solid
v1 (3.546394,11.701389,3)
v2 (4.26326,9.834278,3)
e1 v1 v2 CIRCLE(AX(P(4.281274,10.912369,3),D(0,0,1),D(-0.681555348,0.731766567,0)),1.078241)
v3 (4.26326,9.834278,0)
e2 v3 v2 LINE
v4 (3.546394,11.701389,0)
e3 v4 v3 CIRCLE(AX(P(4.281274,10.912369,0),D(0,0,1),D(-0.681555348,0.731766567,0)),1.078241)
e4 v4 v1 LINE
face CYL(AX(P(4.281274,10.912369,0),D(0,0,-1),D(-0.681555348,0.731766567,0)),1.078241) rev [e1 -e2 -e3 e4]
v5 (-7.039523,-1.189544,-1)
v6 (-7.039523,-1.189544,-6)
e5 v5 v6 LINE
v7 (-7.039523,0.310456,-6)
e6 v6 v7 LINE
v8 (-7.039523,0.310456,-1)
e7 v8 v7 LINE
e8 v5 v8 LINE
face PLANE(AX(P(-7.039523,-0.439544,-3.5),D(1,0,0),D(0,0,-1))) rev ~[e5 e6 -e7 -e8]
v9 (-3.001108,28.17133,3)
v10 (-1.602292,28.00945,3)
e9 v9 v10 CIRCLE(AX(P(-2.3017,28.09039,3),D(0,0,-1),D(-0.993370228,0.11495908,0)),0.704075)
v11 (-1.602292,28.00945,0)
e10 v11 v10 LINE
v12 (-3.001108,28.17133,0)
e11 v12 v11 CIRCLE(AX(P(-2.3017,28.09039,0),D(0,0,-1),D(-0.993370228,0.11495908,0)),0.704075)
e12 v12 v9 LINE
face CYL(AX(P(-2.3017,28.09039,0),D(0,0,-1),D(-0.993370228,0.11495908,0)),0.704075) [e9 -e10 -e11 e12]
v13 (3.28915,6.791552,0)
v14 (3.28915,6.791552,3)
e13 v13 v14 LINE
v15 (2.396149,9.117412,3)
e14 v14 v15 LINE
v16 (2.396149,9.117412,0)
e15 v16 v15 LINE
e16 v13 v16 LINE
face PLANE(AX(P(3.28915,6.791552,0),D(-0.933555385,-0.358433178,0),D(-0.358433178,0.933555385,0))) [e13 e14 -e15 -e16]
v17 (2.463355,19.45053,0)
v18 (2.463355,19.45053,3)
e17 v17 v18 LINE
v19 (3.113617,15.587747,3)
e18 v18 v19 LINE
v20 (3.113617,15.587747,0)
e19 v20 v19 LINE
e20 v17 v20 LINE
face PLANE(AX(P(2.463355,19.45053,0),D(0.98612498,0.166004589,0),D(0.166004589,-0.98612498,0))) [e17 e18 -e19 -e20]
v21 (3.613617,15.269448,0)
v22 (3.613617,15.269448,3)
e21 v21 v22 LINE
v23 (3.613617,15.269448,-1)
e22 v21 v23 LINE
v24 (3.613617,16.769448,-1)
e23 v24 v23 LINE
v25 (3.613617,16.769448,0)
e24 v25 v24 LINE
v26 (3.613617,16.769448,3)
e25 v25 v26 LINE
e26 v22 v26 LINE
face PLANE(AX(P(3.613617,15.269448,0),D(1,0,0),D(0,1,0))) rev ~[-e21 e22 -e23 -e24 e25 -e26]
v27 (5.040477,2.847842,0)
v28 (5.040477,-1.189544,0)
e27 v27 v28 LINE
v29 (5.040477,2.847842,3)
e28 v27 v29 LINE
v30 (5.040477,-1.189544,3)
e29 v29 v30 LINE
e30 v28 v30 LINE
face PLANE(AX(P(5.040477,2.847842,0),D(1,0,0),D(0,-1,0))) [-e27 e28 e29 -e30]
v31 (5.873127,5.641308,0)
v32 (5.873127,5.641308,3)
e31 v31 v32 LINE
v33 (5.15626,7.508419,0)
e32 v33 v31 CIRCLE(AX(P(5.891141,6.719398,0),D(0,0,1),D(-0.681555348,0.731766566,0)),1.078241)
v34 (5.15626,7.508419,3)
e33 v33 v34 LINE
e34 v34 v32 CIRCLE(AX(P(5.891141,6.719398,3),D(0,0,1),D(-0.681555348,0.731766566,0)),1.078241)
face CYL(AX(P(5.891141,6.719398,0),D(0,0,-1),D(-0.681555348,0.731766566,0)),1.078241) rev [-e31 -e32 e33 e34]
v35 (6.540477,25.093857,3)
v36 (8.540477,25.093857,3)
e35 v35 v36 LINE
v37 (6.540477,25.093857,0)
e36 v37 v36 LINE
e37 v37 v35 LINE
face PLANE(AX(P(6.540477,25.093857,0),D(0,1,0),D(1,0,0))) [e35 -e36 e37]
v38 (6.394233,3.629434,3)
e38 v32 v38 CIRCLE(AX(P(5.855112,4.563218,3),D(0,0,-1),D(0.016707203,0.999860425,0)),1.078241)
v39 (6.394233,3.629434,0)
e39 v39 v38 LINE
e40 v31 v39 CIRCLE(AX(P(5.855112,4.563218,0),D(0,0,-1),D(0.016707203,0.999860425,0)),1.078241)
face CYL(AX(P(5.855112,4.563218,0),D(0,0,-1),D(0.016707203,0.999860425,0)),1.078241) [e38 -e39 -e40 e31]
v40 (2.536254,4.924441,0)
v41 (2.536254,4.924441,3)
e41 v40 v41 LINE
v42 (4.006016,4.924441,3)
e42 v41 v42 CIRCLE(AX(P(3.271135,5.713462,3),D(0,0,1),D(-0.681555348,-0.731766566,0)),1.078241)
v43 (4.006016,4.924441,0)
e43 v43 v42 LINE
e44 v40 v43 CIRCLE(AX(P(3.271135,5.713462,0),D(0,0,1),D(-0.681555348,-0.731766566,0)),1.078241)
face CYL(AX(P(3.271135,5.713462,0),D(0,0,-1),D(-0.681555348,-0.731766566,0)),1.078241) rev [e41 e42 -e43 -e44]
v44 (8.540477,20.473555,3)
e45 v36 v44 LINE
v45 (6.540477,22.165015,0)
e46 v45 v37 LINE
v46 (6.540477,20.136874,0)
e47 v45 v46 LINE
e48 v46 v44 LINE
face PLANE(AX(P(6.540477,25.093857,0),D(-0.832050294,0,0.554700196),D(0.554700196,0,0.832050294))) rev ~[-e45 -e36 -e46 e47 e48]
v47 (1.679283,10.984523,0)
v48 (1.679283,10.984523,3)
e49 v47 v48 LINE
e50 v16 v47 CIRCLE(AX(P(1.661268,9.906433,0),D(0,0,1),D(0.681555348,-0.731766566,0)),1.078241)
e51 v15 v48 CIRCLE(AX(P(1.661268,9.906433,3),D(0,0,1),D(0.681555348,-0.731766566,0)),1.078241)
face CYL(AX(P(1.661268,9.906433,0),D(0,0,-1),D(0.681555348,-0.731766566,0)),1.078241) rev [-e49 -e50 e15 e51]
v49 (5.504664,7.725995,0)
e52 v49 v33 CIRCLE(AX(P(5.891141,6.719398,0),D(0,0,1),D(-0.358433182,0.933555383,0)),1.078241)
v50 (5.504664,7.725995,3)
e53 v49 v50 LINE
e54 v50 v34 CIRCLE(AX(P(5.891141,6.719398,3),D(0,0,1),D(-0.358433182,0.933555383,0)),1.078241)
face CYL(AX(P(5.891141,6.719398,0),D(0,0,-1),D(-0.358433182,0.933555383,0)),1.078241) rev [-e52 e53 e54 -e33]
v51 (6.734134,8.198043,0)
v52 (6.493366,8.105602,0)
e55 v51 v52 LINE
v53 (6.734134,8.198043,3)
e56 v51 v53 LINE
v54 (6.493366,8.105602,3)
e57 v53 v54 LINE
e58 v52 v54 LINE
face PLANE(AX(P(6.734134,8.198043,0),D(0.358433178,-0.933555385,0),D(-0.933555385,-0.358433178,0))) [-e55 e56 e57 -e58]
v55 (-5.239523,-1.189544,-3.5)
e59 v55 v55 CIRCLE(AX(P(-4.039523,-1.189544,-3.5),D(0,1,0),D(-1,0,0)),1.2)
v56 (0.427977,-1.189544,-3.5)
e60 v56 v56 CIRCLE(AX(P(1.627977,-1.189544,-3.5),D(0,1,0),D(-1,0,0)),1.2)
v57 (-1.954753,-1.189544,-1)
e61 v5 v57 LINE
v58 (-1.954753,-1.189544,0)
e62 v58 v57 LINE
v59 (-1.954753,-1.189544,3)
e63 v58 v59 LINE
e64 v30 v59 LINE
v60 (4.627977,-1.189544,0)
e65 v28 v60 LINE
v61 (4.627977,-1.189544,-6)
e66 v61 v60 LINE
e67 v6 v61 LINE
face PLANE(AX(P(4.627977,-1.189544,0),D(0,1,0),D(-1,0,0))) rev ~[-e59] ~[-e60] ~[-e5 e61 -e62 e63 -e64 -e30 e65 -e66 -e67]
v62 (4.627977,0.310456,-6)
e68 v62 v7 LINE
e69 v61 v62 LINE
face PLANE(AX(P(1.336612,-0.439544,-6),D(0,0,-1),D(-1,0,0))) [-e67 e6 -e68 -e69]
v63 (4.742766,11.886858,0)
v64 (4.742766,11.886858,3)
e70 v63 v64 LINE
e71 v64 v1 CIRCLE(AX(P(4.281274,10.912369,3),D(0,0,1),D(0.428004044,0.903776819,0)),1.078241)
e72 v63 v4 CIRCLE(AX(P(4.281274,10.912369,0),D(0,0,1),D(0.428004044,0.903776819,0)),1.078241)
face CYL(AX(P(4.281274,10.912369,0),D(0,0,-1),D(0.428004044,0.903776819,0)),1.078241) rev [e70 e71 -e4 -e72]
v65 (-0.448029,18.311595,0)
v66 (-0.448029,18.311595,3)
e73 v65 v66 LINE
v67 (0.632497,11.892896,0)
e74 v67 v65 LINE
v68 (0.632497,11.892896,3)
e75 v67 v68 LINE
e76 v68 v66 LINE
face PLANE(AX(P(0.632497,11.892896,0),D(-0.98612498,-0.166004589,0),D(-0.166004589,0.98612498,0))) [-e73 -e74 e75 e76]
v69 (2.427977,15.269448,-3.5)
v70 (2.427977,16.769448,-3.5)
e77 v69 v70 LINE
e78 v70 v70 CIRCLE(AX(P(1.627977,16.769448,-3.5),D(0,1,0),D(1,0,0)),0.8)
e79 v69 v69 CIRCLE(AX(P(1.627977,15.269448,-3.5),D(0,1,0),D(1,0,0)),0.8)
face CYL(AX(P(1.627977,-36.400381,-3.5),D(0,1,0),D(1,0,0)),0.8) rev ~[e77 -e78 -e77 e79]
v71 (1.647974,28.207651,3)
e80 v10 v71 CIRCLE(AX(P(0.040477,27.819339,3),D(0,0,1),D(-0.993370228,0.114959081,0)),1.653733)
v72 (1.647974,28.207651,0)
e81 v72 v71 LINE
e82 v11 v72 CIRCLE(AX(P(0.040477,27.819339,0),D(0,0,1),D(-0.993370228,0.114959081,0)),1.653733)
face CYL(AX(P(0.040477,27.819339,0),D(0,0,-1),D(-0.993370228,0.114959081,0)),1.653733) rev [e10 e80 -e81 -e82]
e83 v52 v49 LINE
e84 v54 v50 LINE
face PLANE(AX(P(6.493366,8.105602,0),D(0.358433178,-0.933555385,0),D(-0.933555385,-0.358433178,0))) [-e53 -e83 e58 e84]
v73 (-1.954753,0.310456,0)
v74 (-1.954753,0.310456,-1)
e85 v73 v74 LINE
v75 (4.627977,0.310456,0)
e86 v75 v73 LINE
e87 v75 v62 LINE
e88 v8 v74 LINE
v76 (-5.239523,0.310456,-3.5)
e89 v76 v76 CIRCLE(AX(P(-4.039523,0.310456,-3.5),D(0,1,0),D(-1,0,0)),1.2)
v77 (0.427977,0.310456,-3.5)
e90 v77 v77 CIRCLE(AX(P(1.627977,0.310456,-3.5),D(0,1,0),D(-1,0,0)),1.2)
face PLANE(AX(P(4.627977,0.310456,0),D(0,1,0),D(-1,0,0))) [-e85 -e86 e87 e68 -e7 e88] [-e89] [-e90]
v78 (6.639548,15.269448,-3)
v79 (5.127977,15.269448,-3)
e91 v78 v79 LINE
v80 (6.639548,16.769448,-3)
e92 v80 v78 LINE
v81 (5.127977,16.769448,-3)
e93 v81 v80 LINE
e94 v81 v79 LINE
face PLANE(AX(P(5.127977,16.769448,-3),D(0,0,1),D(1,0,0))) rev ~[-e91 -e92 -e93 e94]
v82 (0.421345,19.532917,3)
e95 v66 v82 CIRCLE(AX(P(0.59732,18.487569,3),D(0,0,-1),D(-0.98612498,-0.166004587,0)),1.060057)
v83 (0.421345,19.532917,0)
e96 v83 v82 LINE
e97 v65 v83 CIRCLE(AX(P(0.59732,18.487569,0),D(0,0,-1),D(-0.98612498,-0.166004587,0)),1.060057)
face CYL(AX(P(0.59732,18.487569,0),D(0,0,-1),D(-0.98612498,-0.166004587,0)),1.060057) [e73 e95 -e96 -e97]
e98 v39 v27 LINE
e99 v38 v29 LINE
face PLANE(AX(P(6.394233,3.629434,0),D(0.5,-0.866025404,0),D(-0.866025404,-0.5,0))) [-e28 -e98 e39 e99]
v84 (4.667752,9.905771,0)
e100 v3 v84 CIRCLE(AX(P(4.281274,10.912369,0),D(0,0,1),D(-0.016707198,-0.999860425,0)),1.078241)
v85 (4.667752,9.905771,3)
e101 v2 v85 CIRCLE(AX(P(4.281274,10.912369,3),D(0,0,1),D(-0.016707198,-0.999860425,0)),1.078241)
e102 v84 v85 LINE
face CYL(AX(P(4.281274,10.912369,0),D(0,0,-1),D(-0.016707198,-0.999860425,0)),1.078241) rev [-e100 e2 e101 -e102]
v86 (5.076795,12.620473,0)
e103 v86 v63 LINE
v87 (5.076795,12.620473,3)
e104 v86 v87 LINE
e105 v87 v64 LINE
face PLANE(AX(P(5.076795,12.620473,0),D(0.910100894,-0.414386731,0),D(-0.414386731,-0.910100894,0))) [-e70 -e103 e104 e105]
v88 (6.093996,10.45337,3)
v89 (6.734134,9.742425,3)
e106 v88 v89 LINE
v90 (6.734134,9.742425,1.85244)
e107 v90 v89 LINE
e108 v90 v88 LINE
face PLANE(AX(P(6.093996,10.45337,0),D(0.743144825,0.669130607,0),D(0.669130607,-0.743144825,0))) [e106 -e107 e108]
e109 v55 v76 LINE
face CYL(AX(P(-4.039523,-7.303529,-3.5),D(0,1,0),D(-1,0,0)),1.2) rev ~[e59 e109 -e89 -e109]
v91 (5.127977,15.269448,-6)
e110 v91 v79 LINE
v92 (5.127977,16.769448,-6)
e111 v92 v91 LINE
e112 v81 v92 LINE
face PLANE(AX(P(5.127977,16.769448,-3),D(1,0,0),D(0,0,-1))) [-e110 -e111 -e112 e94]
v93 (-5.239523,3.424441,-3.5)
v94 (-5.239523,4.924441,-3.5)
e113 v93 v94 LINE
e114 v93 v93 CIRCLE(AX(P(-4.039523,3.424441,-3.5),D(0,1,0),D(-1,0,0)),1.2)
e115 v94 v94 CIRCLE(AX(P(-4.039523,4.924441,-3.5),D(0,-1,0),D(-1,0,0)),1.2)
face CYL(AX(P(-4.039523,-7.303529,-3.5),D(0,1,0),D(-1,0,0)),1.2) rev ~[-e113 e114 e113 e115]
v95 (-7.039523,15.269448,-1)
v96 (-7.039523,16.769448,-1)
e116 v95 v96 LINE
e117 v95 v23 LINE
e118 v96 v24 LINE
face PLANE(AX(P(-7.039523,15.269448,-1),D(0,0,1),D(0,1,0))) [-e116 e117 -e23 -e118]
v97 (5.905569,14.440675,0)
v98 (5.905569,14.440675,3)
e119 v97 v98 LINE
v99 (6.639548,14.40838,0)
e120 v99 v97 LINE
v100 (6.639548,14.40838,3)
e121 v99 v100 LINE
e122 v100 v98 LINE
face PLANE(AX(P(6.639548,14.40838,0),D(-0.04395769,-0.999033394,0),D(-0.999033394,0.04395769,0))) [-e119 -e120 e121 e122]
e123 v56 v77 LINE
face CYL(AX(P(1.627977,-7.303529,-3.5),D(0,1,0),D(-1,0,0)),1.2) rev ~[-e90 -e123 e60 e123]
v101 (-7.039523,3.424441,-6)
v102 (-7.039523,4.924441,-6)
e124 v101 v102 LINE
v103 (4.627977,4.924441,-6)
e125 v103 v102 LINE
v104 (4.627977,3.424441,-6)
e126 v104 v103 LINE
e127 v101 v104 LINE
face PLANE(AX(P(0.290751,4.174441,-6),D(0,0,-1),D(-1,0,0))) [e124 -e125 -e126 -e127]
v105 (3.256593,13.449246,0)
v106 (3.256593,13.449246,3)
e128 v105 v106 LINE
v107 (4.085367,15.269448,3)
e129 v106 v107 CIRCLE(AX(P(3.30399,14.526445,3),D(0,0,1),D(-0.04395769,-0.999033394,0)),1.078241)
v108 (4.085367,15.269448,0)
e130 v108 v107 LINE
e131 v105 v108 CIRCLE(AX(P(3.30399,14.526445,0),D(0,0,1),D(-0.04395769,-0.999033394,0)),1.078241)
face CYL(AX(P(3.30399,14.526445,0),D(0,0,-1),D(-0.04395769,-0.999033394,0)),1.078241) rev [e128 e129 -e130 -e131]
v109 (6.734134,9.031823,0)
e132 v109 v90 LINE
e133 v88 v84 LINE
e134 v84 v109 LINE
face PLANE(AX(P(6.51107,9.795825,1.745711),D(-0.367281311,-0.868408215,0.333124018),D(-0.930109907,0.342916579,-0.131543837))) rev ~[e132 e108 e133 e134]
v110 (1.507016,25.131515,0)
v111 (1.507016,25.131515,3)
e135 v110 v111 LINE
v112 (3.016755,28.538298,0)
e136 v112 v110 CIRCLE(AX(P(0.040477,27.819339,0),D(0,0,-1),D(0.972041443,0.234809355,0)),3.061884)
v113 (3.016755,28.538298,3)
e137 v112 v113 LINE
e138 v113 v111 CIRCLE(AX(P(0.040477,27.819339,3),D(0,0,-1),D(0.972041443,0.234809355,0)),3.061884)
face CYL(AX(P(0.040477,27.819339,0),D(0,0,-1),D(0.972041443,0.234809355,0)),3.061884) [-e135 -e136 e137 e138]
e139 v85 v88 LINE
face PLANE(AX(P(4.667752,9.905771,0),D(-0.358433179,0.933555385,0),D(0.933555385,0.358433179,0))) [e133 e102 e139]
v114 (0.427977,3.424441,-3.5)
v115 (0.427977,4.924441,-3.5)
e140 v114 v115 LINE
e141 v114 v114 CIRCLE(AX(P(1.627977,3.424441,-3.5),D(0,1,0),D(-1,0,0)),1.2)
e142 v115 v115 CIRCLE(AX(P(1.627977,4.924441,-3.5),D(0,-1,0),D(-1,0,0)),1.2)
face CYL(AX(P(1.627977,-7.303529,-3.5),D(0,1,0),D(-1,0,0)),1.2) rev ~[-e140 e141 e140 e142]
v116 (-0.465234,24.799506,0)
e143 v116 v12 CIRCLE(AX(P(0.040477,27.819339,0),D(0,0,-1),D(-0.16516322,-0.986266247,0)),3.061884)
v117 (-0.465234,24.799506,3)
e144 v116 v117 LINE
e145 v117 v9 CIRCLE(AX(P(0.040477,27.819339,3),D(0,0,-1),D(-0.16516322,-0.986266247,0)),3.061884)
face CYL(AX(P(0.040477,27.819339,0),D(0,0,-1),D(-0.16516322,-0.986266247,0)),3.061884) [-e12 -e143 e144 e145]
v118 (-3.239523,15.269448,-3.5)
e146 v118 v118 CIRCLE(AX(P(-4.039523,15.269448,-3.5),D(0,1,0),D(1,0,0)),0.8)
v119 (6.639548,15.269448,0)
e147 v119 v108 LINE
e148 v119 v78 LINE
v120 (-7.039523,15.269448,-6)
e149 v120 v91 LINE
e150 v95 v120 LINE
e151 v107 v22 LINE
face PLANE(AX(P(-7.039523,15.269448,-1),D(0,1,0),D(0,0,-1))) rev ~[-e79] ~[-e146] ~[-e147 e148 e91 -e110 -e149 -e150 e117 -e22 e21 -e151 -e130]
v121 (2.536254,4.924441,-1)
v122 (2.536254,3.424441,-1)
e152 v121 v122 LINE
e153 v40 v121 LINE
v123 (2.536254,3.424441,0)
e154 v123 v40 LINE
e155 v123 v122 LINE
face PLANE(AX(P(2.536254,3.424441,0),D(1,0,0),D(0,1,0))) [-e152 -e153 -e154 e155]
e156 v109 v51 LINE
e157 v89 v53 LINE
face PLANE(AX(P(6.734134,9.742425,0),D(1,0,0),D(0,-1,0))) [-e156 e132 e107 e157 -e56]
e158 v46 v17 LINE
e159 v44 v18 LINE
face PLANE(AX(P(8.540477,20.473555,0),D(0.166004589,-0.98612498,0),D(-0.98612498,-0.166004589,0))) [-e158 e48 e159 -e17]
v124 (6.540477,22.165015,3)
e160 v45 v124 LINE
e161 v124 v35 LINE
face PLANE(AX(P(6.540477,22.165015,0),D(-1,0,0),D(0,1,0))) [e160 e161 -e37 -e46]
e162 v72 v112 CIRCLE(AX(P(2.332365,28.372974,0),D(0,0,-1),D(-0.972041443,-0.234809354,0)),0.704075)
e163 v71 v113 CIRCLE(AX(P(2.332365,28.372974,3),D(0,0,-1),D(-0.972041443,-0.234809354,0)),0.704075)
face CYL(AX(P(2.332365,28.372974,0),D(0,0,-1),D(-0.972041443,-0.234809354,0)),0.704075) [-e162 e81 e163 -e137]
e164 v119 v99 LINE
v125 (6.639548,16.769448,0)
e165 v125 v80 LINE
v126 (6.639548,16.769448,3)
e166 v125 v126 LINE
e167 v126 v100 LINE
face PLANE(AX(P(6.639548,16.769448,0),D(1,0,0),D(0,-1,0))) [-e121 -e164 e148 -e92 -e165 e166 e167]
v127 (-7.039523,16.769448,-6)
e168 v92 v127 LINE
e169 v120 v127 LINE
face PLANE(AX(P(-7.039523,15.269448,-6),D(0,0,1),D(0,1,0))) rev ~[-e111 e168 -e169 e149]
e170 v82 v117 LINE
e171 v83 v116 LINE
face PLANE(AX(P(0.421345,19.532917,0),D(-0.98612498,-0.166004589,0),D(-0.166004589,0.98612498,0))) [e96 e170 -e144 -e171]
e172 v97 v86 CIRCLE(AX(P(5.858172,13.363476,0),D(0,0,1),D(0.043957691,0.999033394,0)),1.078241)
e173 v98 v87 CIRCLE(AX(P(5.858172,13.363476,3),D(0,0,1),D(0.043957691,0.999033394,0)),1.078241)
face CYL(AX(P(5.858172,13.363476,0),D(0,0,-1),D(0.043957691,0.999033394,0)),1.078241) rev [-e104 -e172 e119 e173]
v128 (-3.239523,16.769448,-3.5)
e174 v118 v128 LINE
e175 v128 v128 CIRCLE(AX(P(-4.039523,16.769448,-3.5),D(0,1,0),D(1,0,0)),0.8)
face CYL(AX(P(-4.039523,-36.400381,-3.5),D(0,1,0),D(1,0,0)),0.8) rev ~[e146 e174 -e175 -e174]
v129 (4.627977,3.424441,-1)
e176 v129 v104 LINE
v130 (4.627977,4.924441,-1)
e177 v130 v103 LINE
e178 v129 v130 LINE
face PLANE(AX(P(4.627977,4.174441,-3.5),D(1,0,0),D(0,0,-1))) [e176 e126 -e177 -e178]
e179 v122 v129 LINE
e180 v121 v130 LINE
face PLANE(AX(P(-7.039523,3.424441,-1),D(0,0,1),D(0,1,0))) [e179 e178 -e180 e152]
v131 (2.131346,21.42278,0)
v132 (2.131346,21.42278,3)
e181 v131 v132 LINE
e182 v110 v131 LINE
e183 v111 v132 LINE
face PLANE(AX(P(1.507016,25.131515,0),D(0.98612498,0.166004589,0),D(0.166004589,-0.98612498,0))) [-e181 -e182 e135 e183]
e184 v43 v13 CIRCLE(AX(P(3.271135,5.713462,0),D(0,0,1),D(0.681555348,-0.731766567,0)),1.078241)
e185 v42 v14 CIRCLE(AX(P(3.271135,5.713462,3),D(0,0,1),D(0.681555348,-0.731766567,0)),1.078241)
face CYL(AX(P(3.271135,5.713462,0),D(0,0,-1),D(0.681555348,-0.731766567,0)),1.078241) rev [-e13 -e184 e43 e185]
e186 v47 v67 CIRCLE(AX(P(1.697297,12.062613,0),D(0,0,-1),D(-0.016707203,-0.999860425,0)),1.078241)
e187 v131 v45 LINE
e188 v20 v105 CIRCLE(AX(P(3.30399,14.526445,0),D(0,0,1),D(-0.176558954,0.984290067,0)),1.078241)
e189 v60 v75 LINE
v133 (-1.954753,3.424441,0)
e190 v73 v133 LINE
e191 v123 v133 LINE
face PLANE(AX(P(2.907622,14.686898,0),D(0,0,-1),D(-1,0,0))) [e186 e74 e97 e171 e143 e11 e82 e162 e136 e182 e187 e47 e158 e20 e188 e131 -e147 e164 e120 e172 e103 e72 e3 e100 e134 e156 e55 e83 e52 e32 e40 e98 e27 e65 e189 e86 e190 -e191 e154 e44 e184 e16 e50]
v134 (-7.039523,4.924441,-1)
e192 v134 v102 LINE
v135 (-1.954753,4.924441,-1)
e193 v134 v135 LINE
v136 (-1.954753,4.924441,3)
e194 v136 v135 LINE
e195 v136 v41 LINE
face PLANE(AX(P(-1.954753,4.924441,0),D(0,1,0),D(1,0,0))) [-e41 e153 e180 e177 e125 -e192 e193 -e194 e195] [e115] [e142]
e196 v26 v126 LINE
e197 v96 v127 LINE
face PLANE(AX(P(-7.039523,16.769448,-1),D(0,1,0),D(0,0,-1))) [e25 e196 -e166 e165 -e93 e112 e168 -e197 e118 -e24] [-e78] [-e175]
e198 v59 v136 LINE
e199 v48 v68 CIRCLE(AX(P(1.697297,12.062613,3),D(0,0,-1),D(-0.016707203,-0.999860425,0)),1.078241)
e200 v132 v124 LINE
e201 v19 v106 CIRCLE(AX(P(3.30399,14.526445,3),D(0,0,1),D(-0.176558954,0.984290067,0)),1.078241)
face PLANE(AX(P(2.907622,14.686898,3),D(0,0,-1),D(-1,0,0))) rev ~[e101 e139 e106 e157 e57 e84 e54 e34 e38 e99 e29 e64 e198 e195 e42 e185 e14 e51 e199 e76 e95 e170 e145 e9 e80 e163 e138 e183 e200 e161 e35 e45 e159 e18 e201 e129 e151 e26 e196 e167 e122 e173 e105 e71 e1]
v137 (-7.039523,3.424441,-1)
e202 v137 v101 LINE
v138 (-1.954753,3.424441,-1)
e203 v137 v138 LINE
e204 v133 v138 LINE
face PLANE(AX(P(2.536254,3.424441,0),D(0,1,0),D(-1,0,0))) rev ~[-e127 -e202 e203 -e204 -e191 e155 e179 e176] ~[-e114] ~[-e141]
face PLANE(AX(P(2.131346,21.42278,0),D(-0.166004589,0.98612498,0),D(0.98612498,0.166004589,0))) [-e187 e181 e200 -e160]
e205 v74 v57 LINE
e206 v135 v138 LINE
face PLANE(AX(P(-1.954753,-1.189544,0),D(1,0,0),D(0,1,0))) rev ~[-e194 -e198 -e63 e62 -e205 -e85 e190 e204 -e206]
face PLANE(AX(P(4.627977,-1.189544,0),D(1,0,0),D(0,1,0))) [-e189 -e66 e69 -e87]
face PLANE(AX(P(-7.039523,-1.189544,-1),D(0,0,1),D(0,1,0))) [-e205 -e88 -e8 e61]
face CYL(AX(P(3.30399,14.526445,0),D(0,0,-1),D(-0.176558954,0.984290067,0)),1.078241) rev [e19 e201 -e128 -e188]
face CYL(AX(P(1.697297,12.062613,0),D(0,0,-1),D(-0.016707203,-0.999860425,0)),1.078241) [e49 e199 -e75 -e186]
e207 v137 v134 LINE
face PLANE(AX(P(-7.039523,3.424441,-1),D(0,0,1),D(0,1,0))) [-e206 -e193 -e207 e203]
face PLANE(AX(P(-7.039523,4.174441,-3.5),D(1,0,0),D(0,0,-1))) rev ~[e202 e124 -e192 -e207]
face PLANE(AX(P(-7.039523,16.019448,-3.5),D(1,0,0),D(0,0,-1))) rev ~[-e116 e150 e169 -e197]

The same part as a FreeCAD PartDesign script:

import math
import FreeCAD as App
import Part
import Sketcher
from FreeCAD import Vector
Q = App.Units.Quantity


def add_polygon(sketch, points):
    """Adds a closed chain of lines whose ends are joined by coincident constraints."""
    first, n = sketch.GeometryCount, len(points)
    for a, b in zip(points, points[1:] + points[:1]):
        sketch.addGeometry(Part.LineSegment(App.Vector(*a, 0), App.Vector(*b, 0)), False)
    for i in range(n):
        sketch.addConstraint(Sketcher.Constraint("Coincident", first + i, 2, first + (i + 1) % n, 1))

doc = App.newDocument("Part")
body = doc.addObject("PartDesign::Body", "Body")

# Sketch on XY plane
sketch1 = body.newObject("Sketcher::SketchObject", "Sketch")
sketch1.AttachmentSupport = (doc.getObject("XY_Plane"), [""])
sketch1.MapMode = "FlatFace"
sketch1.addGeometry([
    Part.LineSegment(Vector(6.54, 25.09, 0), Vector(6.54, 22.17, 0)),  # 0
    Part.LineSegment(Vector(6.54, 22.17, 0), Vector(2.13, 21.42, 0)),  # 1
    Part.LineSegment(Vector(2.13, 21.42, 0), Vector(1.51, 25.13, 0)),  # 2
    Part.ArcOfCircle(Part.Circle(Vector(0.04, 27.82, 0), Vector(0, 0, 1), 3.06), math.radians(-61), math.radians(14)),  # 3
    Part.ArcOfCircle(Part.Circle(Vector(2.33, 28.37, 0), Vector(0, 0, 1), 0.7), math.radians(14), math.radians(194)),  # 4
    Part.ArcOfCircle(Part.Circle(Vector(0.04, 27.82, 0), Vector(0, 0, 1), 1.65), math.radians(173), math.radians(374)),  # 5
    Part.ArcOfCircle(Part.Circle(Vector(-2.3, 28.09, 0), Vector(0, 0, 1), 0.7), math.radians(-7), math.radians(173)),  # 6
    Part.ArcOfCircle(Part.Circle(Vector(0.04, 27.82, 0), Vector(0, 0, 1), 3.06), math.radians(173), math.radians(260)),  # 7
    Part.LineSegment(Vector(-0.47, 24.8, 0), Vector(0.42, 19.53, 0)),  # 8
    Part.ArcOfCircle(Part.Circle(Vector(0.6, 18.49, 0), Vector(0, 0, 1), 1.06), math.radians(100), math.radians(190)),  # 9
    Part.LineSegment(Vector(-0.45, 18.31, 0), Vector(0.63, 11.89, 0)),  # 10
    Part.ArcOfCircle(Part.Circle(Vector(1.7, 12.06, 0), Vector(0, 0, 1), 1.08), math.radians(-171), math.radians(-91)),  # 11
    Part.ArcOfCircle(Part.Circle(Vector(1.66, 9.91, 0), Vector(0, 0, 1), 1.08), math.radians(-47), math.radians(89)),  # 12
    Part.LineSegment(Vector(2.4, 9.12, 0), Vector(3.29, 6.79, 0)),  # 13
    Part.ArcOfCircle(Part.Circle(Vector(3.27, 5.71, 0), Vector(0, 0, 1), 1.08), math.radians(-47), math.radians(89)),  # 14
    Part.ArcOfCircle(Part.Circle(Vector(3.27, 5.71, 0), Vector(0, 0, 1), 1.08), math.radians(-133), math.radians(-47)),  # 15
    Part.LineSegment(Vector(2.54, 4.92, 0), Vector(-1.95, 4.92, 0)),  # 16
    Part.LineSegment(Vector(-1.95, 4.92, 0), Vector(-1.95, -1.19, 0)),  # 17
    Part.LineSegment(Vector(-1.95, -1.19, 0), Vector(5.04, -1.19, 0)),  # 18
    Part.LineSegment(Vector(5.04, -1.19, 0), Vector(5.04, 2.85, 0)),  # 19
    Part.LineSegment(Vector(5.04, 2.85, 0), Vector(6.39, 3.63, 0)),  # 20
    Part.ArcOfCircle(Part.Circle(Vector(5.86, 4.56, 0), Vector(0, 0, 1), 1.08), math.radians(-60), math.radians(89)),  # 21
    Part.ArcOfCircle(Part.Circle(Vector(5.89, 6.72, 0), Vector(0, 0, 1), 1.08), math.radians(133), math.radians(269)),  # 22
    Part.ArcOfCircle(Part.Circle(Vector(5.89, 6.72, 0), Vector(0, 0, 1), 1.08), math.radians(111), math.radians(133)),  # 23
    Part.LineSegment(Vector(5.5, 7.73, 0), Vector(6.49, 8.11, 0)),  # 24
    Part.LineSegment(Vector(6.49, 8.11, 0), Vector(6.73, 8.2, 0)),  # 25
    Part.LineSegment(Vector(6.73, 8.2, 0), Vector(6.73, 9.74, 0)),  # 26
    Part.LineSegment(Vector(6.73, 9.74, 0), Vector(6.09, 10.45, 0)),  # 27
    Part.LineSegment(Vector(6.09, 10.45, 0), Vector(4.67, 9.91, 0)),  # 28
    Part.ArcOfCircle(Part.Circle(Vector(4.28, 10.91, 0), Vector(0, 0, 1), 1.08), math.radians(-91), math.radians(-69)),  # 29
    Part.ArcOfCircle(Part.Circle(Vector(4.28, 10.91, 0), Vector(0, 0, 1), 1.08), math.radians(133), math.radians(269)),  # 30
    Part.ArcOfCircle(Part.Circle(Vector(4.28, 10.91, 0), Vector(0, 0, 1), 1.08), math.radians(65), math.radians(133)),  # 31
    Part.LineSegment(Vector(4.74, 11.89, 0), Vector(5.08, 12.62, 0)),  # 32
    Part.ArcOfCircle(Part.Circle(Vector(5.86, 13.36, 0), Vector(0, 0, 1), 1.08), math.radians(87), math.radians(224)),  # 33
    Part.LineSegment(Vector(5.91, 14.44, 0), Vector(6.64, 14.41, 0)),  # 34
    Part.LineSegment(Vector(6.64, 14.41, 0), Vector(6.64, 16.77, 0)),  # 35
    Part.LineSegment(Vector(6.64, 16.77, 0), Vector(3.61, 16.77, 0)),  # 36
    Part.LineSegment(Vector(3.61, 16.77, 0), Vector(3.61, 15.27, 0)),  # 37
    Part.LineSegment(Vector(3.61, 15.27, 0), Vector(4.09, 15.27, 0)),  # 38
    Part.ArcOfCircle(Part.Circle(Vector(3.3, 14.53, 0), Vector(0, 0, 1), 1.08), math.radians(-93), math.radians(44)),  # 39
    Part.ArcOfCircle(Part.Circle(Vector(3.3, 14.53, 0), Vector(0, 0, 1), 1.08), math.radians(100), math.radians(267)),  # 40
    Part.LineSegment(Vector(3.11, 15.59, 0), Vector(2.46, 19.45, 0)),  # 41
    Part.LineSegment(Vector(2.46, 19.45, 0), Vector(8.54, 20.47, 0)),  # 42
    Part.LineSegment(Vector(8.54, 20.47, 0), Vector(8.54, 25.09, 0)),  # 43
    Part.LineSegment(Vector(8.54, 25.09, 0), Vector(6.54, 25.09, 0)),  # 44
], False)
sketch1.addConstraint([
    Sketcher.Constraint("Coincident", 0, 2, 1, 1),
    Sketcher.Constraint("Coincident", 1, 2, 2, 1),
    Sketcher.Constraint("Coincident", 2, 2, 3, 1),
    Sketcher.Constraint("Tangent", 3, 2, 4, 1),
    Sketcher.Constraint("Tangent", 4, 2, 5, 2),
    Sketcher.Constraint("Tangent", 5, 1, 6, 1),
    Sketcher.Constraint("Tangent", 6, 2, 7, 1),
    Sketcher.Constraint("Coincident", 7, 2, 8, 1),
    Sketcher.Constraint("Coincident", 8, 2, 9, 1),
    Sketcher.Constraint("Tangent", 9, 2, 10, 1),
    Sketcher.Constraint("Coincident", 10, 2, 11, 1),
    Sketcher.Constraint("Tangent", 11, 2, 12, 2),
    Sketcher.Constraint("Coincident", 12, 1, 13, 1),
    Sketcher.Constraint("Coincident", 13, 2, 14, 2),
    Sketcher.Constraint("Tangent", 14, 1, 15, 2),
    Sketcher.Constraint("Coincident", 15, 1, 16, 1),
    Sketcher.Constraint("Coincident", 16, 2, 17, 1),
    Sketcher.Constraint("Coincident", 17, 2, 18, 1),
    Sketcher.Constraint("Coincident", 18, 2, 19, 1),
    Sketcher.Constraint("Coincident", 19, 2, 20, 1),
    Sketcher.Constraint("Tangent", 20, 2, 21, 1),
    Sketcher.Constraint("Tangent", 21, 2, 22, 2),
    Sketcher.Constraint("Tangent", 22, 1, 23, 2),
    Sketcher.Constraint("Tangent", 23, 1, 24, 1),
    Sketcher.Constraint("Coincident", 24, 2, 25, 1),
    Sketcher.Constraint("Coincident", 25, 2, 26, 1),
    Sketcher.Constraint("Coincident", 26, 2, 27, 1),
    Sketcher.Constraint("Coincident", 27, 2, 28, 1),
    Sketcher.Constraint("Tangent", 28, 2, 29, 2),
    Sketcher.Constraint("Tangent", 29, 1, 30, 2),
    Sketcher.Constraint("Tangent", 30, 1, 31, 2),
    Sketcher.Constraint("Coincident", 31, 1, 32, 1),
    Sketcher.Constraint("Coincident", 32, 2, 33, 2),
    Sketcher.Constraint("Tangent", 33, 1, 34, 1),
    Sketcher.Constraint("Coincident", 34, 2, 35, 1),
    Sketcher.Constraint("Coincident", 35, 2, 36, 1),
    Sketcher.Constraint("Coincident", 36, 2, 37, 1),
    Sketcher.Constraint("Coincident", 37, 2, 38, 1),
    Sketcher.Constraint("Coincident", 38, 2, 39, 2),
    Sketcher.Constraint("Tangent", 39, 1, 40, 2),
    Sketcher.Constraint("Coincident", 40, 1, 41, 1),
    Sketcher.Constraint("Coincident", 41, 2, 42, 1),
    Sketcher.Constraint("Coincident", 42, 2, 43, 1),
    Sketcher.Constraint("Coincident", 43, 2, 44, 1),
    Sketcher.Constraint("Coincident", 44, 2, 0, 1),
    Sketcher.Constraint("Vertical", 0),
    Sketcher.Constraint("Horizontal", 16),
    Sketcher.Constraint("Vertical", 17),
    Sketcher.Constraint("Horizontal", 18),
    Sketcher.Constraint("Vertical", 19),
    Sketcher.Constraint("Vertical", 26),
    Sketcher.Constraint("Vertical", 35),
    Sketcher.Constraint("Horizontal", 36),
    Sketcher.Constraint("Vertical", 37),
    Sketcher.Constraint("Horizontal", 38),
    Sketcher.Constraint("Vertical", 43),
    Sketcher.Constraint("Horizontal", 44),
    Sketcher.Constraint("Coincident", 5, 3, 3, 3),
    Sketcher.Constraint("Coincident", 7, 3, 3, 3),
    Sketcher.Constraint("Coincident", 31, 3, 29, 3),
    Sketcher.Constraint("Equal", 4, 6),
    Sketcher.Constraint("Equal", 11, 12),
    Sketcher.Constraint("Equal", 12, 14),
    Sketcher.Constraint("Equal", 14, 15),
    Sketcher.Constraint("Equal", 15, 21),
    Sketcher.Constraint("Equal", 21, 22),
    Sketcher.Constraint("Equal", 22, 23),
    Sketcher.Constraint("Equal", 23, 29),
    Sketcher.Constraint("Equal", 31, 33),
    Sketcher.Constraint("Equal", 33, 39),
    Sketcher.Constraint("Equal", 39, 40),
    Sketcher.Constraint("Perpendicular", 1, 2),
    Sketcher.Constraint("Parallel", 2, 8),
    Sketcher.Constraint("Parallel", 8, 10),
    Sketcher.Constraint("Perpendicular", 13, 24),
    Sketcher.Constraint("Parallel", 24, 25),
    Sketcher.Constraint("Parallel", 25, 28),
    Sketcher.Constraint("Parallel", 10, 41),
    Sketcher.Constraint("Perpendicular", 41, 42),
    Sketcher.Constraint("Horizontal", 14, 1, 15, 1),
    Sketcher.Constraint("DistanceX", 44, 2, 44, 1, Q("2 mm")),
    Sketcher.Constraint("Angle", 20, Q("30 deg")),
    Sketcher.Constraint("Angle", 27, Q("132 deg")),
    Sketcher.Constraint("DistanceY", 37, 2, 37, 1, Q("1.5 mm")),
    Sketcher.Constraint("Radius", 11, Q("1.078241 mm")),
    Sketcher.Constraint("Radius", 3, Q("3.061884 mm")),
    Sketcher.Constraint("Radius", 4, Q("0.704075 mm")),
    Sketcher.Constraint("Radius", 9, Q("1.060057 mm")),
    Sketcher.Constraint("Distance", 13, Q("2.4914 mm")),
    Sketcher.Constraint("DistanceX", 18, 1, 18, 2, Q("6.99523 mm")),
    Sketcher.Constraint("DistanceX", 36, 2, 36, 1, Q("3.025931 mm")),
    Sketcher.Constraint("DistanceX", 38, 1, 38, 2, Q("0.47175 mm")),
    Sketcher.Constraint("DistanceY", 26, 1, 26, 2, Q("1.544382 mm")),
    Sketcher.Constraint("DistanceY", 35, 1, 35, 2, Q("2.361069 mm")),
    Sketcher.Constraint("DistanceX", 6, 3, -1, 1, Q("2.3017 mm")),
    Sketcher.Constraint("DistanceY", -1, 1, 22, 3, Q("6.719398 mm")),
    Sketcher.Constraint("Distance", 1, Q("4.471169 mm")),
    Sketcher.Constraint("Distance", 8, Q("5.34069 mm")),
    Sketcher.Constraint("Distance", 10, Q("6.509011 mm")),
    Sketcher.Constraint("Distance", 27, Q("0.95667 mm")),
    Sketcher.Constraint("Distance", 32, Q("0.806081 mm")),
    Sketcher.Constraint("Distance", 34, Q("0.73469 mm")),
    Sketcher.Constraint("Distance", 42, Q("6.162628 mm")),
    Sketcher.Constraint("DistanceX", 16, 2, 16, 1, Q("4.491007 mm")),
    Sketcher.Constraint("DistanceY", 0, 2, 0, 1, Q("2.928842 mm")),
    Sketcher.Constraint("DistanceY", 17, 2, 17, 1, Q("6.113985 mm")),
    Sketcher.Constraint("DistanceY", 19, 1, 19, 2, Q("4.037386 mm")),
    Sketcher.Constraint("DistanceY", 43, 1, 43, 2, Q("4.620302 mm")),
    Sketcher.Constraint("DistanceY", -1, 1, 3, 3, Q("27.819339 mm")),
    Sketcher.Constraint("DistanceY", -1, 1, 6, 3, Q("28.09039 mm")),
    Sketcher.Constraint("DistanceX", -1, 1, 9, 3, Q("0.59732 mm")),
    Sketcher.Constraint("DistanceY", -1, 1, 9, 3, Q("18.487569 mm")),
    Sketcher.Constraint("DistanceX", -1, 1, 12, 3, Q("1.661268 mm")),
    Sketcher.Constraint("DistanceY", -1, 1, 14, 3, Q("5.713462 mm")),
    Sketcher.Constraint("DistanceX", -1, 1, 22, 3, Q("5.891141 mm")),
    Sketcher.Constraint("DistanceY", -1, 1, 29, 3, Q("10.912369 mm")),
    Sketcher.Constraint("DistanceX", -1, 1, 33, 3, Q("5.858172 mm")),
    Sketcher.Constraint("DistanceX", -1, 1, 39, 3, Q("3.30399 mm")),
    Sketcher.Constraint("DistanceY", -1, 1, 1, 2, Q("21.42278 mm")),
    Sketcher.Constraint("DistanceY", -1, 1, 4, 2, Q("28.207651 mm")),
    Sketcher.Constraint("DistanceX", 9, 2, -1, 1, Q("0.448029 mm")),
    Sketcher.Constraint("DistanceX", -1, 1, 12, 1, Q("2.396149 mm")),
    Sketcher.Constraint("DistanceX", -1, 1, 13, 2, Q("3.28915 mm")),
    Sketcher.Constraint("DistanceY", -1, 1, 14, 1, Q("4.924441 mm")),
    Sketcher.Constraint("DistanceX", -1, 1, 22, 1, Q("5.15626 mm")),
    Sketcher.Constraint("DistanceY", -1, 1, 27, 2, Q("10.45337 mm")),
    Sketcher.Constraint("DistanceX", -1, 1, 29, 1, Q("4.26326 mm")),
    Sketcher.Constraint("DistanceY", -1, 1, 30, 1, Q("11.701389 mm")),
    Sketcher.Constraint("DistanceX", -1, 1, 33, 1, Q("5.905569 mm")),
    Sketcher.Constraint("DistanceY", -1, 1, 34, 2, Q("14.40838 mm")),
    Sketcher.Constraint("Distance", 2, Q("3.760918 mm")),
    Sketcher.Constraint("Distance", 20, Q("1.563182 mm")),
    Sketcher.Constraint("Distance", 24, Q("1.059072 mm")),
    Sketcher.Constraint("DistanceX", -1, 1, 31, 1, Q("4.742766 mm")),
    Sketcher.Constraint("DistanceX", -1, 1, 39, 1, Q("3.256593 mm")),
])
pad1 = body.newObject("PartDesign::Pad", "Pad")
pad1.Profile = sketch1
pad1.Length = 3

# Sketch on XY plane
sketch2 = body.newObject("Sketcher::SketchObject", "Sketch001")
sketch2.AttachmentSupport = (doc.getObject("XY_Plane"), [""])
sketch2.MapMode = "FlatFace"
add_polygon(sketch2, [(4.6, 0.3), (4.6, -1.2), (-2, -1.2), (-2, 0.3)])  # lines 0-3
add_polygon(sketch2, [(6.6, 16.8), (6.6, 15.3), (3.6, 15.3), (3.6, 16.8)])  # lines 4-7
add_polygon(sketch2, [(2.5, 4.9), (2.5, 3.4), (-2, 3.4), (-2, 4.9)])  # lines 8-11
sketch2.addConstraint([
    Sketcher.Constraint("Vertical", 0),
    Sketcher.Constraint("Horizontal", 1),
    Sketcher.Constraint("Vertical", 2),
    Sketcher.Constraint("Horizontal", 3),
    Sketcher.Constraint("Vertical", 4),
    Sketcher.Constraint("Horizontal", 5),
    Sketcher.Constraint("Vertical", 6),
    Sketcher.Constraint("Horizontal", 7),
    Sketcher.Constraint("Vertical", 8),
    Sketcher.Constraint("Horizontal", 9),
    Sketcher.Constraint("Vertical", 10),
    Sketcher.Constraint("Horizontal", 11),
    Sketcher.Constraint("Vertical", 2, 2, 9, 2),
    Sketcher.Constraint("Equal", 2, 4),
    Sketcher.Constraint("Equal", 6, 8),
    Sketcher.Constraint("DistanceY", 0, 2, 0, 1, Q("1.5 mm")),
    Sketcher.Constraint("DistanceX", 1, 2, 1, 1, Q("6.58273 mm")),
    Sketcher.Constraint("DistanceX", 5, 2, 5, 1, Q("3.025931 mm")),
    Sketcher.Constraint("DistanceX", 2, 2, 4, 2, Q("8.594301 mm")),
    Sketcher.Constraint("DistanceX", 9, 2, 9, 1, Q("4.491007 mm")),
    Sketcher.Constraint("DistanceX", -1, 1, 4, 2, Q("6.639548 mm")),
    Sketcher.Constraint("DistanceY", -1, 1, 4, 2, Q("15.269448 mm")),
    Sketcher.Constraint("DistanceY", -1, 1, 8, 2, Q("3.424441 mm")),
    Sketcher.Constraint("DistanceY", 3, 2, 4, 2, Q("14.958992 mm")),
])
pad2 = body.newObject("PartDesign::Pad", "Pad001")
pad2.Profile = sketch2
pad2.Length = 6
pad2.Reversed = True

# Sketch on YZ plane
sketch3 = body.newObject("Sketcher::SketchObject", "Sketch002")
sketch3.AttachmentSupport = (doc.getObject("YZ_Plane"), [""])
sketch3.MapMode = "FlatFace"
sketch3.AttachmentOffset = App.Placement(Vector(0, 0, -7.039523), App.Rotation())
add_polygon(sketch3, [(16.8, -1), (15.3, -1), (15.3, -6), (16.8, -6)])  # lines 0-3
add_polygon(sketch3, [(4.9, -1), (3.4, -1), (3.4, -6), (4.9, -6)])  # lines 4-7
add_polygon(sketch3, [(0.3, -1), (-1.2, -1), (-1.2, -6), (0.3, -6)])  # lines 8-11
sketch3.addConstraint([
    Sketcher.Constraint("Horizontal", 0),
    Sketcher.Constraint("Vertical", 1),
    Sketcher.Constraint("Horizontal", 2),
    Sketcher.Constraint("Vertical", 3),
    Sketcher.Constraint("Horizontal", 4),
    Sketcher.Constraint("Vertical", 5),
    Sketcher.Constraint("Horizontal", 6),
    Sketcher.Constraint("Vertical", 7),
    Sketcher.Constraint("Horizontal", 8),
    Sketcher.Constraint("Vertical", 9),
    Sketcher.Constraint("Horizontal", 10),
    Sketcher.Constraint("Vertical", 11),
    Sketcher.Constraint("Horizontal", 3, 2, 4, 2),
    Sketcher.Constraint("Horizontal", 2, 2, 5, 2),
    Sketcher.Constraint("Horizontal", 7, 2, 8, 2),
    Sketcher.Constraint("Horizontal", 6, 2, 9, 2),
    Sketcher.Constraint("Equal", 2, 4),
    Sketcher.Constraint("Equal", 6, 8),
    Sketcher.Constraint("DistanceY", 1, 2, 1, 1, Q("5 mm")),
    Sketcher.Constraint("DistanceX", 0, 2, 0, 1, Q("1.5 mm")),
    Sketcher.Constraint("DistanceY", 0, 2, -1, 1, Q("1 mm")),
    Sketcher.Constraint("DistanceX", -1, 1, 0, 2, Q("15.269448 mm")),
    Sketcher.Constraint("DistanceX", -1, 1, 4, 2, Q("3.424441 mm")),
    Sketcher.Constraint("DistanceX", 8, 2, 0, 2, Q("16.458992 mm")),
])
pad3 = body.newObject("PartDesign::Pad", "Pad002")
pad3.Profile = sketch3
pad3.Length = 11.6675

# Sketch on XZ plane
sketch4 = body.newObject("Sketcher::SketchObject", "Sketch003")
sketch4.AttachmentSupport = (doc.getObject("XZ_Plane"), [""])
sketch4.MapMode = "FlatFace"
sketch4.AttachmentOffset = App.Placement(Vector(0, 0, 1.189544), App.Rotation())
sketch4.addGeometry([
    Part.Circle(Vector(-4, -3.5, 0), Vector(0, 0, 1), 0.8),
    Part.Circle(Vector(1.6, -3.5, 0), Vector(0, 0, 1), 0.8),
], False)
sketch4.addConstraint([
    Sketcher.Constraint("Equal", 0, 1),
    Sketcher.Constraint("Horizontal", 0, 3, 1, 3),
    Sketcher.Constraint("Diameter", 0, Q("1.6 mm")),
    Sketcher.Constraint("DistanceY", 0, 3, -1, 1, Q("3.5 mm")),
    Sketcher.Constraint("DistanceX", 0, 3, 1, 3, Q("5.6675 mm")),
    Sketcher.Constraint("DistanceX", 0, 3, -1, 1, Q("4.039523 mm")),
])
doc.recompute()
hole = body.newObject("PartDesign::Hole", "Hole")
hole.Profile = sketch4
hole.ThreadType = "None"
hole.Diameter = 1.6
hole.DepthType = "ThroughAll"

# Sketch on XZ plane
sketch5 = body.newObject("Sketcher::SketchObject", "Sketch004")
sketch5.AttachmentSupport = (doc.getObject("XZ_Plane"), [""])
sketch5.MapMode = "FlatFace"
sketch5.AttachmentOffset = App.Placement(Vector(0, 0, 1.189544), App.Rotation())
sketch5.addGeometry([
    Part.Circle(Vector(-4, -3.5, 0), Vector(0, 0, 1), 1.2),
    Part.Circle(Vector(1.6, -3.5, 0), Vector(0, 0, 1), 1.2),
], False)
sketch5.addConstraint([
    Sketcher.Constraint("Equal", 0, 1),
    Sketcher.Constraint("Horizontal", 0, 3, 1, 3),
    Sketcher.Constraint("Diameter", 0, Q("2.4 mm")),
    Sketcher.Constraint("DistanceY", 0, 3, -1, 1, Q("3.5 mm")),
    Sketcher.Constraint("DistanceX", 0, 3, 1, 3, Q("5.6675 mm")),
    Sketcher.Constraint("DistanceX", 0, 3, -1, 1, Q("4.039523 mm")),
])
doc.recompute()
hole2 = body.newObject("PartDesign::Hole", "Hole001")
hole2.Profile = sketch5
hole2.ThreadType = "None"
hole2.Diameter = 2.4
hole2.DepthType = "Dimension"
hole2.Depth = 6.113985
hole2.DrillPoint = "Angled"
hole2.DrillPointAngle = 118

# Sketch on XZ plane
sketch6 = body.newObject("Sketcher::SketchObject", "Sketch005")
sketch6.AttachmentSupport = (doc.getObject("XZ_Plane"), [""])
sketch6.MapMode = "FlatFace"
sketch6.AttachmentOffset = App.Placement(Vector(0, 0, -16.769448), App.Rotation())
add_polygon(sketch6, [(5.1, -6), (5.1, -3), (6.6, -3), (6.6, -6)])  # lines 0-3
sketch6.addConstraint([
    Sketcher.Constraint("Vertical", 0),
    Sketcher.Constraint("Horizontal", 1),
    Sketcher.Constraint("Vertical", 2),
    Sketcher.Constraint("Horizontal", 3),
    Sketcher.Constraint("DistanceY", 0, 1, 0, 2, Q("3 mm")),
    Sketcher.Constraint("DistanceY", 0, 2, -1, 1, Q("3 mm")),
    Sketcher.Constraint("DistanceX", 1, 1, 1, 2, Q("1.511571 mm")),
    Sketcher.Constraint("DistanceX", -1, 1, 1, 2, Q("6.639548 mm")),
])
pocket1 = body.newObject("PartDesign::Pocket", "Pocket")
pocket1.Profile = sketch6
pocket1.Type = "UpToFirst"
pocket1.Reversed = True

# Sketch on XZ plane
sketch7 = body.newObject("Sketcher::SketchObject", "Sketch006")
sketch7.AttachmentSupport = (doc.getObject("XZ_Plane"), [""])
sketch7.MapMode = "FlatFace"
sketch7.AttachmentOffset = App.Placement(Vector(0, 0, -25.093857), App.Rotation())
add_polygon(sketch7, [(6.5, 0), (8.5, 3), (8.5, 0)])  # lines 0-2
sketch7.addConstraint([
    Sketcher.Constraint("Vertical", 1),
    Sketcher.Constraint("Horizontal", 2),
    Sketcher.Constraint("PointOnObject", 1, 2, -1),
    Sketcher.Constraint("DistanceX", 2, 2, 2, 1, Q("2 mm")),
    Sketcher.Constraint("DistanceY", 1, 2, 1, 1, Q("3 mm")),
    Sketcher.Constraint("DistanceX", -1, 1, 0, 2, Q("8.540477 mm")),
])
pocket2 = body.newObject("PartDesign::Pocket", "Pocket001")
pocket2.Profile = sketch7
pocket2.Type = "UpToFirst"
pocket2.Reversed = True

# Sketch on an angled plane
sketch8 = body.newObject("Sketcher::SketchObject", "Sketch007")
sketch8.Placement = App.Placement(Vector(3.789106, 8.959047, -3.436718), App.Rotation(Vector(-0.930109907, 0.342916579, -0.131543837), Vector(0, -0.358155542, -0.933661935), Vector(-0.367281311, -0.868408215, 0.333124018), "ZXY"))
add_polygon(sketch8, [(-0.9, -3.5), (-4.3, -3.1), (-4.8, -7), (-1.4, -7)])  # lines 0-3
sketch8.addConstraint([
    Sketcher.Constraint("Horizontal", 2),
    Sketcher.Constraint("Perpendicular", 0, 1),
    Sketcher.Constraint("Distance", 1, Q("3.924541 mm")),
    Sketcher.Constraint("DistanceX", 2, 1, 2, 2, Q("3.392876 mm")),
    Sketcher.Constraint("DistanceY", 0, 2, -1, 1, Q("3.078271 mm")),
    Sketcher.Constraint("DistanceX", 1, 2, -1, 1, Q("4.824829 mm")),
    Sketcher.Constraint("DistanceY", 1, 2, -1, 1, Q("6.964431 mm")),
    Sketcher.Constraint("DistanceX", 3, 2, -1, 1, Q("0.944669 mm")),
])
pocket3 = body.newObject("PartDesign::Pocket", "Pocket002")
pocket3.Profile = sketch8
pocket3.Length = 0.999372

doc.recompute()
